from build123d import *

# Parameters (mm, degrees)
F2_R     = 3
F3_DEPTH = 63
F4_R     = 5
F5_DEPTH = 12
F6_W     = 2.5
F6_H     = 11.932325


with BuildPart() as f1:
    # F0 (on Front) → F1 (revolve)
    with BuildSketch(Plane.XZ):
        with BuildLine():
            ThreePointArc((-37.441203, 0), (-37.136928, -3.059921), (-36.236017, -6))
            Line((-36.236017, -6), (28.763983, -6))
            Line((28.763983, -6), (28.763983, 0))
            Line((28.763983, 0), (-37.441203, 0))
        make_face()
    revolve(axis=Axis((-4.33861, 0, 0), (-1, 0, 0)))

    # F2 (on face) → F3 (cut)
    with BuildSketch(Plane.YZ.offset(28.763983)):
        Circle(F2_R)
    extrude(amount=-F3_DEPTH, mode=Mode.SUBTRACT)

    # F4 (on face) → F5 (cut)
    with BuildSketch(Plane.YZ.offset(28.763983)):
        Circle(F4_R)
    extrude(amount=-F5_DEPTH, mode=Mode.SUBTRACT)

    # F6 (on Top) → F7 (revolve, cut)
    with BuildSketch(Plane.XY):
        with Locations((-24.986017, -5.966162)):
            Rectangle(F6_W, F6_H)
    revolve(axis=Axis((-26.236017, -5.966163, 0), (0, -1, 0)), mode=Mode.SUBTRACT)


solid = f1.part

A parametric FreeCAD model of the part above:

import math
import FreeCAD as App
import Part
import Sketcher
from FreeCAD import Vector
Q = App.Units.Quantity

doc = App.newDocument("Part")
body = doc.addObject("PartDesign::Body", "Body")

# Sketch on XZ plane
sketch1 = body.newObject("Sketcher::SketchObject", "Sketch")
sketch1.AttachmentSupport = (doc.getObject("XZ_Plane"), [""])
sketch1.MapMode = "FlatFace"
sketch1.addGeometry([
    Part.ArcOfCircle(Part.Circle(Vector(-22, 0, 0), Vector(0, 0, 1), 16), math.radians(180), math.radians(203)),
    Part.LineSegment(Vector(-36, -6, 0), Vector(29, -6, 0)),
    Part.LineSegment(Vector(29, -6, 0), Vector(29, 0, 0)),
    Part.LineSegment(Vector(29, 0, 0), Vector(-37, 0, 0)),
], False)
sketch1.addConstraint([
    Sketcher.Constraint("Coincident", 0, 2, 1, 1),
    Sketcher.Constraint("Coincident", 1, 2, 2, 1),
    Sketcher.Constraint("Coincident", 2, 2, 3, 1),
    Sketcher.Constraint("Coincident", 3, 2, 0, 1),
    Sketcher.Constraint("Horizontal", 1),
    Sketcher.Constraint("Vertical", 2),
    Sketcher.Constraint("Horizontal", 3),
    Sketcher.Constraint("PointOnObject", 2, 2, -1),
    Sketcher.Constraint("DistanceX", 1, 1, 1, 2, Q("65 mm")),
    Sketcher.Constraint("DistanceY", 2, 1, 2, 2, Q("6 mm")),
    Sketcher.Constraint("Radius", 0, Q("15.538013 mm")),
    Sketcher.Constraint("DistanceX", 3, 2, 3, 1, Q("66.205186 mm")),
    Sketcher.Constraint("DistanceX", 0, 3, -1, 1, Q("21.90319 mm")),
])
revolution = body.newObject("PartDesign::Revolution", "Revolution")
revolution.Profile = sketch1
revolution.ReferenceAxis = (sketch1, ["H_Axis"])
revolution.Angle = 360

# Sketch on YZ plane
sketch2 = body.newObject("Sketcher::SketchObject", "Sketch001")
sketch2.AttachmentSupport = (doc.getObject("YZ_Plane"), [""])
sketch2.MapMode = "FlatFace"
sketch2.AttachmentOffset = App.Placement(Vector(0, 0, 28.763983), App.Rotation())
sketch2.addGeometry(Part.Circle(Vector(0, 0, 0), Vector(0, 0, 1), 3), False)
sketch2.addConstraint([
    Sketcher.Constraint("Coincident", 0, 3, -1, 1),
    Sketcher.Constraint("Diameter", 0, Q("6 mm")),
])
pocket1 = body.newObject("PartDesign::Pocket", "Pocket")
pocket1.Profile = sketch2
pocket1.Length = 63

# Sketch on YZ plane
sketch3 = body.newObject("Sketcher::SketchObject", "Sketch002")
sketch3.AttachmentSupport = (doc.getObject("YZ_Plane"), [""])
sketch3.MapMode = "FlatFace"
sketch3.AttachmentOffset = App.Placement(Vector(0, 0, 28.763983), App.Rotation())
sketch3.addGeometry(Part.Circle(Vector(0, 0, 0), Vector(0, 0, 1), 5), False)
sketch3.addConstraint([
    Sketcher.Constraint("Coincident", 0, 3, -1, 1),
    Sketcher.Constraint("Diameter", 0, Q("10 mm")),
])
pocket2 = body.newObject("PartDesign::Pocket", "Pocket001")
pocket2.Profile = sketch3
pocket2.Length = 12

# Sketch on XY plane
sketch4 = body.newObject("Sketcher::SketchObject", "Sketch003")
sketch4.AttachmentSupport = (doc.getObject("XY_Plane"), [""])
sketch4.MapMode = "FlatFace"
sketch4.addGeometry([
    Part.LineSegment(Vector(-26.2, 0, 0), Vector(-26.2, -11.9, 0)),
    Part.LineSegment(Vector(-26.2, -11.9, 0), Vector(-23.7, -11.9, 0)),
    Part.LineSegment(Vector(-23.7, -11.9, 0), Vector(-23.7, 0, 0)),
    Part.LineSegment(Vector(-23.7, 0, 0), Vector(-26.2, 0, 0)),
], False)
sketch4.addGeometry(Part.LineSegment(Vector(-26.2, 0, 0), Vector(-26.2, -11.9, 0)), True)  # axis
sketch4.addConstraint([
    Sketcher.Constraint("Coincident", 0, 2, 1, 1),
    Sketcher.Constraint("Coincident", 1, 2, 2, 1),
    Sketcher.Constraint("Coincident", 2, 2, 3, 1),
    Sketcher.Constraint("Coincident", 3, 2, 0, 1),
    Sketcher.Constraint("Vertical", 0),
    Sketcher.Constraint("Horizontal", 1),
    Sketcher.Constraint("Vertical", 2),
    Sketcher.Constraint("Horizontal", 3),
    Sketcher.Constraint("Vertical", 4),
    Sketcher.Constraint("Coincident", 4, 1, 3, 2),
    Sketcher.Constraint("PointOnObject", 2, 2, -1),
    Sketcher.Constraint("Horizontal", 1, 2, 4, 2),
    Sketcher.Constraint("DistanceX", 1, 1, 1, 2, Q("2.5 mm")),
    Sketcher.Constraint("DistanceY", 0, 2, 0, 1, Q("11.932325 mm")),
    Sketcher.Constraint("DistanceX", 0, 2, -1, 1, Q("26.236017 mm")),
])
groove = body.newObject("PartDesign::Groove", "Groove")
groove.Profile = sketch4
groove.ReferenceAxis = (sketch4, ["Axis0"])
groove.Angle = 360

doc.recompute()
